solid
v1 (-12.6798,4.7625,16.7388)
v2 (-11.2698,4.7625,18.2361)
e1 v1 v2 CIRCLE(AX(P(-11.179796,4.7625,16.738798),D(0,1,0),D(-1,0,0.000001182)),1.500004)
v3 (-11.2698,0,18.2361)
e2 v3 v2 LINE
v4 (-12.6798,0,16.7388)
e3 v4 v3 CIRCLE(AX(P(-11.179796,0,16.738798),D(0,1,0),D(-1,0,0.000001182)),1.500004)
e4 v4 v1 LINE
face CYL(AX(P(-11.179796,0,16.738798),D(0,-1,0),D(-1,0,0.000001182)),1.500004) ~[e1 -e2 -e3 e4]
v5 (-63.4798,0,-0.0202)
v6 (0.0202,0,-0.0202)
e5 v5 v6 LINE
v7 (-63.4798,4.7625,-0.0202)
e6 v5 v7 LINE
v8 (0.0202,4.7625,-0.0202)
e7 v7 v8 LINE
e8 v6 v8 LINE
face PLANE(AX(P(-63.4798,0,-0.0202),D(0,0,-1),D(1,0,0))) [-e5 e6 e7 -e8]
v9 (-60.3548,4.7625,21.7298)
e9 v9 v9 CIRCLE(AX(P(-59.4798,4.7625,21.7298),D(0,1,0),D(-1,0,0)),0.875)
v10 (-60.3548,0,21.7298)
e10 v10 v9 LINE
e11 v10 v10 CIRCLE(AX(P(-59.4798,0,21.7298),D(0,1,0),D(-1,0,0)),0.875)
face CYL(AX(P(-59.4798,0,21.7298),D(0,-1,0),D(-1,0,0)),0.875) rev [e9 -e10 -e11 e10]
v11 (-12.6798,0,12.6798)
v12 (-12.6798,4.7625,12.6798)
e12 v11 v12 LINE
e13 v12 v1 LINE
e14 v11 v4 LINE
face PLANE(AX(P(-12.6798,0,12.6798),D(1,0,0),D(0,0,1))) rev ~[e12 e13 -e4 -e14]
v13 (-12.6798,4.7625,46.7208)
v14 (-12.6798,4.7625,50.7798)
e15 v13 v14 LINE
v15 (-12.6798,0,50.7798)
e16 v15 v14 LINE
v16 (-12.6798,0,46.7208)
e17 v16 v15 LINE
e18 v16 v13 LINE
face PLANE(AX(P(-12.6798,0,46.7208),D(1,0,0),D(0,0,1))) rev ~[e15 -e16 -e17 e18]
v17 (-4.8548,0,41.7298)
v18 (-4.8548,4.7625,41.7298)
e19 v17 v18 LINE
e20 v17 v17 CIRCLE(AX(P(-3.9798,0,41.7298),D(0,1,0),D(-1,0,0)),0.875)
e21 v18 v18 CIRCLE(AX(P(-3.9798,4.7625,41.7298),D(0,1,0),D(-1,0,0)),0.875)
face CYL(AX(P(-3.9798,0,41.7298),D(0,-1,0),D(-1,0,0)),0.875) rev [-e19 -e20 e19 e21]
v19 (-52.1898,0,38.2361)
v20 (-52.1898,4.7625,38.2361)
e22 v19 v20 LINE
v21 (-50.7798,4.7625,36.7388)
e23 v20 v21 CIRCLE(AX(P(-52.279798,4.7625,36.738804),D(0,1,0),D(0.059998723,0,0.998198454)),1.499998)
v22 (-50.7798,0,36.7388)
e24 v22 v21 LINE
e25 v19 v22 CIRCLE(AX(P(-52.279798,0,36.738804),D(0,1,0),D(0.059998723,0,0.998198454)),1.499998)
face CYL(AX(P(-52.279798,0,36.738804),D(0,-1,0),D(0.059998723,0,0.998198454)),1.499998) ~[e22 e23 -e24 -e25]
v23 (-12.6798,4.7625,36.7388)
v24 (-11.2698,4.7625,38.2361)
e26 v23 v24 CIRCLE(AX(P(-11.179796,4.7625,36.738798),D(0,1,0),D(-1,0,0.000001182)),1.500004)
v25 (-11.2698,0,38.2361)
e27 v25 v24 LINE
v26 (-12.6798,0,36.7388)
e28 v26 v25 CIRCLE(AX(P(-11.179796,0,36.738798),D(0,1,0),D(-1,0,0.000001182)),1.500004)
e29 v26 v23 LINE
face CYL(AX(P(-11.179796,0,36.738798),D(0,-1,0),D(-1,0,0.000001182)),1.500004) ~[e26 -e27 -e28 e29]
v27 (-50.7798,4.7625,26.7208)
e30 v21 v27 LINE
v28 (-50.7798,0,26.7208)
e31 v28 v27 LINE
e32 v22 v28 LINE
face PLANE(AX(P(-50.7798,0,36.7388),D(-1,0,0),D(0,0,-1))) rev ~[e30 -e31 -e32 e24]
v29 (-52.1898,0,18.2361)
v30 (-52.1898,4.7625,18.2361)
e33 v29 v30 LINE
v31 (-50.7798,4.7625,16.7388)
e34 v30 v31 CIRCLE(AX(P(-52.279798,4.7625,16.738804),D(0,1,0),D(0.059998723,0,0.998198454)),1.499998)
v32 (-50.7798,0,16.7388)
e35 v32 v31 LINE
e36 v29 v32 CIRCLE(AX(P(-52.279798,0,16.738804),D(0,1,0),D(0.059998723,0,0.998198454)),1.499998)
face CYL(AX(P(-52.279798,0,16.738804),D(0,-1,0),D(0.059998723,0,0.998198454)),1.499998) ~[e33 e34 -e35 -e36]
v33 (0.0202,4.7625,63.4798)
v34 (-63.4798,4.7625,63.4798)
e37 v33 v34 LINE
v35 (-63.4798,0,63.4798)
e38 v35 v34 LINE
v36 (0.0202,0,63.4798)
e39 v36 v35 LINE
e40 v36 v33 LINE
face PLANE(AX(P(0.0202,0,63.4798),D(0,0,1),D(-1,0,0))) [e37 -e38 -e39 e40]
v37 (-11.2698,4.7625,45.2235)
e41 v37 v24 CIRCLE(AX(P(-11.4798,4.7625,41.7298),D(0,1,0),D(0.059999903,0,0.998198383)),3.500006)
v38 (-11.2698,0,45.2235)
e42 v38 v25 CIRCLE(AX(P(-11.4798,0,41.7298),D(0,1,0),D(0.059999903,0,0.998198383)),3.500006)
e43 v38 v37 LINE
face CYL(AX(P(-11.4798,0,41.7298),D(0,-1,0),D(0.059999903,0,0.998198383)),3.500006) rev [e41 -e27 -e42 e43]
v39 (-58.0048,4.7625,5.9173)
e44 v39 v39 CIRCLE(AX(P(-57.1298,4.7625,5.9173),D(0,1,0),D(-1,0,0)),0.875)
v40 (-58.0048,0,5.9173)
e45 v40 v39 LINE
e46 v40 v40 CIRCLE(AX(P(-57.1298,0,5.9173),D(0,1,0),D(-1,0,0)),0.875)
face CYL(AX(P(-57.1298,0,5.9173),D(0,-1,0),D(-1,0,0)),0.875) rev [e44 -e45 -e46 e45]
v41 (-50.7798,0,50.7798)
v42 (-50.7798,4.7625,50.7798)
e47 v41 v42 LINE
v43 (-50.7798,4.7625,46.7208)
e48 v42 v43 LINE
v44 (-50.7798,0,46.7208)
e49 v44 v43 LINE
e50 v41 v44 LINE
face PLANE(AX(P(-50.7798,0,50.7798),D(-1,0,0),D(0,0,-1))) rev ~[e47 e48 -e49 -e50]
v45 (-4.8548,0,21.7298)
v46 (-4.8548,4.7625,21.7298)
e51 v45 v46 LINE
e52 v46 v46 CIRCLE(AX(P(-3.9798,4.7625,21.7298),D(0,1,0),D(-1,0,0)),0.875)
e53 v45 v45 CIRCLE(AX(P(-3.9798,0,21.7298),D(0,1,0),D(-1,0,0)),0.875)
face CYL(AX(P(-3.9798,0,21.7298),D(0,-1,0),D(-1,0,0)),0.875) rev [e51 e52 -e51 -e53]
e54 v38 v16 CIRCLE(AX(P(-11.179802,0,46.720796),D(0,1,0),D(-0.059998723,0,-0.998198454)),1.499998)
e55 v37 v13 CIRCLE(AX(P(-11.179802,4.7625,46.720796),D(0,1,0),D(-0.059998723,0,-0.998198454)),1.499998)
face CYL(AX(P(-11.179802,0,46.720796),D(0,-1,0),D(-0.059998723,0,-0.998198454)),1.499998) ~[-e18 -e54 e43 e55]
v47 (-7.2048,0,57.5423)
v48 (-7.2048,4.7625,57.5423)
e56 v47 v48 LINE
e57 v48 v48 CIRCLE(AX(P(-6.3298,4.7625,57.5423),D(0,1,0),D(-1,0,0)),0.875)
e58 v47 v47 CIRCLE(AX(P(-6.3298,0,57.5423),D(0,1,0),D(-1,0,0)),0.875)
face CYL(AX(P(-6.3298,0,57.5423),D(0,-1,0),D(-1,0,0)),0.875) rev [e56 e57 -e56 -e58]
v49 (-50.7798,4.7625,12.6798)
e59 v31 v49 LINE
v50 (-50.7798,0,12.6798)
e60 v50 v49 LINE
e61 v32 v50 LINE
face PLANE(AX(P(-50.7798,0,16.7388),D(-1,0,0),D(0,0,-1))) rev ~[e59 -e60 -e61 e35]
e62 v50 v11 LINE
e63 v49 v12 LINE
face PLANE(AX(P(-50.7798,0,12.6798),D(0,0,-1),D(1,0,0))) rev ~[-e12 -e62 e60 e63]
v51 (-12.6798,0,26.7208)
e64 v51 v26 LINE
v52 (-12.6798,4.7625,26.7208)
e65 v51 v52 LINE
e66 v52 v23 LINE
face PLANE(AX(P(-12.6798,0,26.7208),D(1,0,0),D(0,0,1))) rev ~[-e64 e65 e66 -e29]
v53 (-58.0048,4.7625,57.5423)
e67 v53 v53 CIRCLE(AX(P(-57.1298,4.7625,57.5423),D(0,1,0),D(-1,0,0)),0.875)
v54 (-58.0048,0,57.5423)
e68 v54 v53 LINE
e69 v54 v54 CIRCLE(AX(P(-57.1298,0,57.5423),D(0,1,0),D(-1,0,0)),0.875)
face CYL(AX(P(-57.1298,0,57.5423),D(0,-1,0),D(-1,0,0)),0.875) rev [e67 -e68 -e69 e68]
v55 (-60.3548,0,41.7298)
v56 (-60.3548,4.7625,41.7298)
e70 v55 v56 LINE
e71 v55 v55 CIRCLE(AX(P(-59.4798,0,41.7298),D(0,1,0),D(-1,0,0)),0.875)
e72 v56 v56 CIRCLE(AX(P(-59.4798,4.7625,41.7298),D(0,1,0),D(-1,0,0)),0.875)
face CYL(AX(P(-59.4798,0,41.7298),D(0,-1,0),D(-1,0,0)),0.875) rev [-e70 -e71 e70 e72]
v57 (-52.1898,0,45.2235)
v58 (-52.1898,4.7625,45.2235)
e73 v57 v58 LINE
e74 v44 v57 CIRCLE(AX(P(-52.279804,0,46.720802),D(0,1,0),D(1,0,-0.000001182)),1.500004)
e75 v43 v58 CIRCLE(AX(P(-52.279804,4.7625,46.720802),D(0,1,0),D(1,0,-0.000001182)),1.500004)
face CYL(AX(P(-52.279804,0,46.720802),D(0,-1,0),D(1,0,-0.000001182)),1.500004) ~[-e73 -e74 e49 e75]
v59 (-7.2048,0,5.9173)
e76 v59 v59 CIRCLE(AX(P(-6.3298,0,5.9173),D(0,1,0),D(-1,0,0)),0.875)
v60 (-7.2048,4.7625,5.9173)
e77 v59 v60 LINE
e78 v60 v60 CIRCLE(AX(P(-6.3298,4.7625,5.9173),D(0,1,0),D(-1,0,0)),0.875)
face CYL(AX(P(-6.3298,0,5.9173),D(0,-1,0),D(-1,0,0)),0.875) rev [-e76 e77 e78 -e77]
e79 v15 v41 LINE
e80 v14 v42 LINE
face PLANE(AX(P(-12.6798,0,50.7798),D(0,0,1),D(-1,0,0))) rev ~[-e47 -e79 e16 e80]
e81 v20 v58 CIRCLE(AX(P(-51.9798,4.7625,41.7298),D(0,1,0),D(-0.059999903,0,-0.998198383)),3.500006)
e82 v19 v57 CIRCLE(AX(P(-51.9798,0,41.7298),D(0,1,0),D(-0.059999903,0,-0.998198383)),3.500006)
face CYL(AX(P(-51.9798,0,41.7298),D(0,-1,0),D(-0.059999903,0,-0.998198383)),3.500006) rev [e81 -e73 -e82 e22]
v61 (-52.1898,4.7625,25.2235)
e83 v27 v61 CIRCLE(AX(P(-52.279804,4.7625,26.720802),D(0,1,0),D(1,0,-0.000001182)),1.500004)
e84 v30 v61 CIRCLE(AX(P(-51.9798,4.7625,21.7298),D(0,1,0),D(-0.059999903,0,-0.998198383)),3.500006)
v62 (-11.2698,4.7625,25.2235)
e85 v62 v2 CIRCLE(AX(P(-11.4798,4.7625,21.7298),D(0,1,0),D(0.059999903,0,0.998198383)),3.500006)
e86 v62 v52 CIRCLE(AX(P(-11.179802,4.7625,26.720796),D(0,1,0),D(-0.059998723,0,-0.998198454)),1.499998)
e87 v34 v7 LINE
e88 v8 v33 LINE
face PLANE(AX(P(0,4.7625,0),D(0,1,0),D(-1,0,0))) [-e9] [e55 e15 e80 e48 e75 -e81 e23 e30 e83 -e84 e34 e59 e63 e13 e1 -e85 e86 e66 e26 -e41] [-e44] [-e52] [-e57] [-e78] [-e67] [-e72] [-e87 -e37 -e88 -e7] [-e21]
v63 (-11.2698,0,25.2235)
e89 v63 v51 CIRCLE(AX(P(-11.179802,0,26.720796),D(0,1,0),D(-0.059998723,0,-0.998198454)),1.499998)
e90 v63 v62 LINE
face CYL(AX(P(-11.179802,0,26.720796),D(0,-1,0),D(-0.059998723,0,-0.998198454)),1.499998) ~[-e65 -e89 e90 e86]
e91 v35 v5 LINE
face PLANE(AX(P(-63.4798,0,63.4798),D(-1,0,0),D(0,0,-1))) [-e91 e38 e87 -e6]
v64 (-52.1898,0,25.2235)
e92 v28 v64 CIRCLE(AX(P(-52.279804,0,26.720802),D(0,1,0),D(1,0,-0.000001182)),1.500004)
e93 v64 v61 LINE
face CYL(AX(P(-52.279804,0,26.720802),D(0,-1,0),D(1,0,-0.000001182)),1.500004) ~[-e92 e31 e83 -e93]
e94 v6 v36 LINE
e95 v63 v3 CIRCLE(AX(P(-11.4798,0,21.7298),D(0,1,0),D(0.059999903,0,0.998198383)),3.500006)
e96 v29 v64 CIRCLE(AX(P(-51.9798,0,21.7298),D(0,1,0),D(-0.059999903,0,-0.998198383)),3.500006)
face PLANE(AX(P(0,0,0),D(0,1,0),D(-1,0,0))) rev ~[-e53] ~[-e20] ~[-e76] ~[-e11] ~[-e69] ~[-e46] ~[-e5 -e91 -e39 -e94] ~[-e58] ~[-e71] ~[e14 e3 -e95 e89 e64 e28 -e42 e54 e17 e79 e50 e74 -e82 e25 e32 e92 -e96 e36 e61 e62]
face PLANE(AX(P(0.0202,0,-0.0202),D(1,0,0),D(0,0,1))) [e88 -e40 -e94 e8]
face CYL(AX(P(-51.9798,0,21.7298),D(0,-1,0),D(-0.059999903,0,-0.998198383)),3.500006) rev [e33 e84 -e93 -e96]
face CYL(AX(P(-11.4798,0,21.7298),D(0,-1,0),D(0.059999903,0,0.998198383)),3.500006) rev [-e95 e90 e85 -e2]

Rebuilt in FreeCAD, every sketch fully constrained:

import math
import FreeCAD as App
import Part
import Sketcher
from FreeCAD import Vector
Q = App.Units.Quantity


def add_polygon(sketch, points):
    """Adds a closed chain of lines whose ends are joined by coincident constraints."""
    first, n = sketch.GeometryCount, len(points)
    for a, b in zip(points, points[1:] + points[:1]):
        sketch.addGeometry(Part.LineSegment(App.Vector(*a, 0), App.Vector(*b, 0)), False)
    for i in range(n):
        sketch.addConstraint(Sketcher.Constraint("Coincident", first + i, 2, first + (i + 1) % n, 1))

doc = App.newDocument("Part")
body = doc.addObject("PartDesign::Body", "Body")

# Sketch on XZ plane
sketch1 = doc.addObject("Sketcher::SketchObject", "Sketch")
body.addObject(sketch1)
sketch1.AttachmentSupport = (doc.XZ_Plane, [""])
sketch1.MapMode = "FlatFace"
add_polygon(sketch1, [(-63.5, 63.5), (0, 63.5), (0, 0), (-63.5, 0)])  # lines 0-3
sketch1.addGeometry(Part.Circle(Vector(-6.3, 5.9, 0), Vector(0, 0, 1), 0.9), False)  # 4
sketch1.addGeometry(Part.Circle(Vector(-4, 21.7, 0), Vector(0, 0, 1), 0.9), False)  # 5
sketch1.addGeometry(Part.Circle(Vector(-57.1, 5.9, 0), Vector(0, 0, 1), 0.9), False)  # 6
sketch1.addGeometry(Part.Circle(Vector(-59.5, 21.7, 0), Vector(0, 0, 1), 0.9), False)  # 7
sketch1.addGeometry(Part.Circle(Vector(-4, 41.7, 0), Vector(0, 0, 1), 0.9), False)  # 8
sketch1.addGeometry(Part.Circle(Vector(-6.3, 57.5, 0), Vector(0, 0, 1), 0.9), False)  # 9
sketch1.addGeometry(Part.LineSegment(Vector(-50.8, 16.7, 0), Vector(-50.8, 12.7, 0)), False)  # 10
sketch1.addGeometry(Part.LineSegment(Vector(-50.8, 12.7, 0), Vector(-12.7, 12.7, 0)), False)  # 11
sketch1.addGeometry(Part.LineSegment(Vector(-12.7, 12.7, 0), Vector(-12.7, 16.7, 0)), False)  # 12
sketch1.addGeometry(Part.ArcOfCircle(Part.Circle(Vector(-11.2, 16.7, 0), Vector(0, 0, 1), 1.5), math.radians(93), math.radians(180)), False)  # 13
sketch1.addGeometry(Part.ArcOfCircle(Part.Circle(Vector(-11.5, 21.7, 0), Vector(0, 0, 1), 3.5), math.radians(-87), math.radians(87)), False)  # 14
sketch1.addGeometry(Part.ArcOfCircle(Part.Circle(Vector(-11.2, 26.7, 0), Vector(0, 0, 1), 1.5), math.radians(180), math.radians(267)), False)  # 15
sketch1.addGeometry(Part.LineSegment(Vector(-12.7, 26.7, 0), Vector(-12.7, 36.7, 0)), False)  # 16
sketch1.addGeometry(Part.ArcOfCircle(Part.Circle(Vector(-11.2, 36.7, 0), Vector(0, 0, 1), 1.5), math.radians(93), math.radians(180)), False)  # 17
sketch1.addGeometry(Part.ArcOfCircle(Part.Circle(Vector(-11.5, 41.7, 0), Vector(0, 0, 1), 3.5), math.radians(-87), math.radians(87)), False)  # 18
sketch1.addGeometry(Part.ArcOfCircle(Part.Circle(Vector(-11.2, 46.7, 0), Vector(0, 0, 1), 1.5), math.radians(180), math.radians(267)), False)  # 19
sketch1.addGeometry(Part.LineSegment(Vector(-12.7, 46.7, 0), Vector(-12.7, 50.8, 0)), False)  # 20
sketch1.addGeometry(Part.LineSegment(Vector(-12.7, 50.8, 0), Vector(-50.8, 50.8, 0)), False)  # 21
sketch1.addGeometry(Part.LineSegment(Vector(-50.8, 50.8, 0), Vector(-50.8, 46.7, 0)), False)  # 22
sketch1.addGeometry(Part.ArcOfCircle(Part.Circle(Vector(-52.3, 46.7, 0), Vector(0, 0, 1), 1.5), math.radians(-87), math.radians(0)), False)  # 23
sketch1.addGeometry(Part.ArcOfCircle(Part.Circle(Vector(-52, 41.7, 0), Vector(0, 0, 1), 3.5), math.radians(93), math.radians(267)), False)  # 24
sketch1.addGeometry(Part.ArcOfCircle(Part.Circle(Vector(-52.3, 36.7, 0), Vector(0, 0, 1), 1.5), math.radians(0), math.radians(87)), False)  # 25
sketch1.addGeometry(Part.LineSegment(Vector(-50.8, 36.7, 0), Vector(-50.8, 26.7, 0)), False)  # 26
sketch1.addGeometry(Part.ArcOfCircle(Part.Circle(Vector(-52.3, 26.7, 0), Vector(0, 0, 1), 1.5), math.radians(-87), math.radians(0)), False)  # 27
sketch1.addGeometry(Part.ArcOfCircle(Part.Circle(Vector(-52, 21.7, 0), Vector(0, 0, 1), 3.5), math.radians(93), math.radians(267)), False)  # 28
sketch1.addGeometry(Part.ArcOfCircle(Part.Circle(Vector(-52.3, 16.7, 0), Vector(0, 0, 1), 1.5), math.radians(0), math.radians(87)), False)  # 29
sketch1.addGeometry(Part.Circle(Vector(-59.5, 41.7, 0), Vector(0, 0, 1), 0.9), False)  # 30
sketch1.addGeometry(Part.Circle(Vector(-57.1, 57.5, 0), Vector(0, 0, 1), 0.9), False)  # 31
sketch1.addConstraint([
    Sketcher.Constraint("Coincident", 10, 2, 11, 1),
    Sketcher.Constraint("Coincident", 11, 2, 12, 1),
    Sketcher.Constraint("Tangent", 12, 2, 13, 2),
    Sketcher.Constraint("Tangent", 13, 1, 14, 1),
    Sketcher.Constraint("Tangent", 14, 2, 15, 2),
    Sketcher.Constraint("Tangent", 15, 1, 16, 1),
    Sketcher.Constraint("Tangent", 16, 2, 17, 2),
    Sketcher.Constraint("Tangent", 17, 1, 18, 1),
    Sketcher.Constraint("Tangent", 18, 2, 19, 2),
    Sketcher.Constraint("Tangent", 19, 1, 20, 1),
    Sketcher.Constraint("Coincident", 20, 2, 21, 1),
    Sketcher.Constraint("Coincident", 21, 2, 22, 1),
    Sketcher.Constraint("Tangent", 22, 2, 23, 2),
    Sketcher.Constraint("Tangent", 23, 1, 24, 1),
    Sketcher.Constraint("Tangent", 24, 2, 25, 2),
    Sketcher.Constraint("Tangent", 25, 1, 26, 1),
    Sketcher.Constraint("Tangent", 26, 2, 27, 2),
    Sketcher.Constraint("Tangent", 27, 1, 28, 1),
    Sketcher.Constraint("Tangent", 28, 2, 29, 2),
    Sketcher.Constraint("Tangent", 29, 1, 10, 1),
    Sketcher.Constraint("Horizontal", 0),
    Sketcher.Constraint("Vertical", 1),
    Sketcher.Constraint("Horizontal", 2),
    Sketcher.Constraint("Vertical", 3),
    Sketcher.Constraint("Vertical", 10),
    Sketcher.Constraint("Horizontal", 11),
    Sketcher.Constraint("Vertical", 12),
    Sketcher.Constraint("Vertical", 16),
    Sketcher.Constraint("Vertical", 20),
    Sketcher.Constraint("Horizontal", 21),
    Sketcher.Constraint("Vertical", 22),
    Sketcher.Constraint("Vertical", 26),
    Sketcher.Constraint("Equal", 4, 5),
    Sketcher.Constraint("Equal", 5, 6),
    Sketcher.Constraint("Equal", 6, 7),
    Sketcher.Constraint("Equal", 7, 8),
    Sketcher.Constraint("Equal", 8, 9),
    Sketcher.Constraint("Equal", 13, 15),
    Sketcher.Constraint("Equal", 15, 17),
    Sketcher.Constraint("Equal", 14, 18),
    Sketcher.Constraint("Equal", 17, 19),
    Sketcher.Constraint("Equal", 19, 23),
    Sketcher.Constraint("Equal", 18, 24),
    Sketcher.Constraint("Equal", 23, 25),
    Sketcher.Constraint("Equal", 25, 27),
    Sketcher.Constraint("Equal", 24, 28),
    Sketcher.Constraint("Equal", 27, 29),
    Sketcher.Constraint("Equal", 9, 30),
    Sketcher.Constraint("Equal", 30, 31),
    Sketcher.Constraint("Horizontal", 4, 3, 6, 3),
    Sketcher.Constraint("Horizontal", 5, 3, 7, 3),
    Sketcher.Constraint("Horizontal", 7, 3, 14, 3),
    Sketcher.Constraint("Horizontal", 8, 3, 18, 3),
    Sketcher.Constraint("Horizontal", 19, 3, 23, 3),
    Sketcher.Constraint("Horizontal", 18, 3, 24, 3),
    Sketcher.Constraint("Horizontal", 17, 3, 25, 3),
    Sketcher.Constraint("Horizontal", 15, 3, 27, 3),
    Sketcher.Constraint("Horizontal", 14, 3, 28, 3),
    Sketcher.Constraint("Horizontal", 13, 3, 29, 3),
    Sketcher.Constraint("Horizontal", 24, 3, 30, 3),
    Sketcher.Constraint("Horizontal", 9, 3, 31, 3),
    Sketcher.Constraint("Vertical", 5, 3, 8, 3),
    Sketcher.Constraint("Vertical", 4, 3, 9, 3),
    Sketcher.Constraint("Vertical", 13, 3, 15, 3),
    Sketcher.Constraint("Vertical", 14, 3, 18, 3),
    Sketcher.Constraint("Vertical", 17, 3, 19, 3),
    Sketcher.Constraint("Vertical", 7, 3, 30, 3),
    Sketcher.Constraint("Vertical", 6, 3, 31, 3),
    Sketcher.Constraint("Equal", 2, 1),
    Sketcher.Constraint("Equal", 12, 20),
    Sketcher.Constraint("DistanceX", 0, 1, 0, 2, Q("2.5 in")),
    Sketcher.Constraint("DistanceX", 11, 1, 11, 2, Q("1.5 in")),
    Sketcher.Constraint("DistanceX", 6, 3, 4, 3, Q("2 in")),
    Sketcher.Constraint("Diameter", 4, Q("0.0689 in")),
    Sketcher.Constraint("Radius", 14, Q("0.1378 in")),
    Sketcher.Constraint("Radius", 13, Q("1.5 mm")),
    Sketcher.Constraint("DistanceX", 9, 3, 0, 2, Q("0.25 in")),
    Sketcher.Constraint("DistanceX", 6, 3, 10, 2, Q("0.25 in")),
    Sketcher.Constraint("DistanceY", 10, 2, 10, 1, Q("0.1598 in")),
    Sketcher.Constraint("DistanceY", 16, 1, 16, 2, Q("0.3944 in")),
    Sketcher.Constraint("DistanceY", -1, 1, 13, 3, Q("0.659 in")),
    Sketcher.Constraint("DistanceY", -1, 1, 15, 3, Q("1.052 in")),
    Sketcher.Constraint("DistanceX", 13, 1, 5, 3, Q("0.287 in")),
    Sketcher.Constraint("DistanceX", 30, 3, 23, 1, Q("0.287 in")),
    Sketcher.Constraint("DistanceX", 4, 3, -1, 1, Q("0.2492 in")),
    Sketcher.Constraint("DistanceY", -1, 1, 0, 2, Q("2.4992 in")),
    Sketcher.Constraint("DistanceY", -1, 1, 4, 3, Q("5.9173 mm")),
    Sketcher.Constraint("DistanceY", -1, 1, 9, 3, Q("57.5423 mm")),
])
pad1 = doc.addObject("PartDesign::Pad", "Pad")
body.addObject(pad1)
pad1.Profile = sketch1
pad1.Length = Q("0.1875 in")
pad1.Reversed = True

doc.recompute()
